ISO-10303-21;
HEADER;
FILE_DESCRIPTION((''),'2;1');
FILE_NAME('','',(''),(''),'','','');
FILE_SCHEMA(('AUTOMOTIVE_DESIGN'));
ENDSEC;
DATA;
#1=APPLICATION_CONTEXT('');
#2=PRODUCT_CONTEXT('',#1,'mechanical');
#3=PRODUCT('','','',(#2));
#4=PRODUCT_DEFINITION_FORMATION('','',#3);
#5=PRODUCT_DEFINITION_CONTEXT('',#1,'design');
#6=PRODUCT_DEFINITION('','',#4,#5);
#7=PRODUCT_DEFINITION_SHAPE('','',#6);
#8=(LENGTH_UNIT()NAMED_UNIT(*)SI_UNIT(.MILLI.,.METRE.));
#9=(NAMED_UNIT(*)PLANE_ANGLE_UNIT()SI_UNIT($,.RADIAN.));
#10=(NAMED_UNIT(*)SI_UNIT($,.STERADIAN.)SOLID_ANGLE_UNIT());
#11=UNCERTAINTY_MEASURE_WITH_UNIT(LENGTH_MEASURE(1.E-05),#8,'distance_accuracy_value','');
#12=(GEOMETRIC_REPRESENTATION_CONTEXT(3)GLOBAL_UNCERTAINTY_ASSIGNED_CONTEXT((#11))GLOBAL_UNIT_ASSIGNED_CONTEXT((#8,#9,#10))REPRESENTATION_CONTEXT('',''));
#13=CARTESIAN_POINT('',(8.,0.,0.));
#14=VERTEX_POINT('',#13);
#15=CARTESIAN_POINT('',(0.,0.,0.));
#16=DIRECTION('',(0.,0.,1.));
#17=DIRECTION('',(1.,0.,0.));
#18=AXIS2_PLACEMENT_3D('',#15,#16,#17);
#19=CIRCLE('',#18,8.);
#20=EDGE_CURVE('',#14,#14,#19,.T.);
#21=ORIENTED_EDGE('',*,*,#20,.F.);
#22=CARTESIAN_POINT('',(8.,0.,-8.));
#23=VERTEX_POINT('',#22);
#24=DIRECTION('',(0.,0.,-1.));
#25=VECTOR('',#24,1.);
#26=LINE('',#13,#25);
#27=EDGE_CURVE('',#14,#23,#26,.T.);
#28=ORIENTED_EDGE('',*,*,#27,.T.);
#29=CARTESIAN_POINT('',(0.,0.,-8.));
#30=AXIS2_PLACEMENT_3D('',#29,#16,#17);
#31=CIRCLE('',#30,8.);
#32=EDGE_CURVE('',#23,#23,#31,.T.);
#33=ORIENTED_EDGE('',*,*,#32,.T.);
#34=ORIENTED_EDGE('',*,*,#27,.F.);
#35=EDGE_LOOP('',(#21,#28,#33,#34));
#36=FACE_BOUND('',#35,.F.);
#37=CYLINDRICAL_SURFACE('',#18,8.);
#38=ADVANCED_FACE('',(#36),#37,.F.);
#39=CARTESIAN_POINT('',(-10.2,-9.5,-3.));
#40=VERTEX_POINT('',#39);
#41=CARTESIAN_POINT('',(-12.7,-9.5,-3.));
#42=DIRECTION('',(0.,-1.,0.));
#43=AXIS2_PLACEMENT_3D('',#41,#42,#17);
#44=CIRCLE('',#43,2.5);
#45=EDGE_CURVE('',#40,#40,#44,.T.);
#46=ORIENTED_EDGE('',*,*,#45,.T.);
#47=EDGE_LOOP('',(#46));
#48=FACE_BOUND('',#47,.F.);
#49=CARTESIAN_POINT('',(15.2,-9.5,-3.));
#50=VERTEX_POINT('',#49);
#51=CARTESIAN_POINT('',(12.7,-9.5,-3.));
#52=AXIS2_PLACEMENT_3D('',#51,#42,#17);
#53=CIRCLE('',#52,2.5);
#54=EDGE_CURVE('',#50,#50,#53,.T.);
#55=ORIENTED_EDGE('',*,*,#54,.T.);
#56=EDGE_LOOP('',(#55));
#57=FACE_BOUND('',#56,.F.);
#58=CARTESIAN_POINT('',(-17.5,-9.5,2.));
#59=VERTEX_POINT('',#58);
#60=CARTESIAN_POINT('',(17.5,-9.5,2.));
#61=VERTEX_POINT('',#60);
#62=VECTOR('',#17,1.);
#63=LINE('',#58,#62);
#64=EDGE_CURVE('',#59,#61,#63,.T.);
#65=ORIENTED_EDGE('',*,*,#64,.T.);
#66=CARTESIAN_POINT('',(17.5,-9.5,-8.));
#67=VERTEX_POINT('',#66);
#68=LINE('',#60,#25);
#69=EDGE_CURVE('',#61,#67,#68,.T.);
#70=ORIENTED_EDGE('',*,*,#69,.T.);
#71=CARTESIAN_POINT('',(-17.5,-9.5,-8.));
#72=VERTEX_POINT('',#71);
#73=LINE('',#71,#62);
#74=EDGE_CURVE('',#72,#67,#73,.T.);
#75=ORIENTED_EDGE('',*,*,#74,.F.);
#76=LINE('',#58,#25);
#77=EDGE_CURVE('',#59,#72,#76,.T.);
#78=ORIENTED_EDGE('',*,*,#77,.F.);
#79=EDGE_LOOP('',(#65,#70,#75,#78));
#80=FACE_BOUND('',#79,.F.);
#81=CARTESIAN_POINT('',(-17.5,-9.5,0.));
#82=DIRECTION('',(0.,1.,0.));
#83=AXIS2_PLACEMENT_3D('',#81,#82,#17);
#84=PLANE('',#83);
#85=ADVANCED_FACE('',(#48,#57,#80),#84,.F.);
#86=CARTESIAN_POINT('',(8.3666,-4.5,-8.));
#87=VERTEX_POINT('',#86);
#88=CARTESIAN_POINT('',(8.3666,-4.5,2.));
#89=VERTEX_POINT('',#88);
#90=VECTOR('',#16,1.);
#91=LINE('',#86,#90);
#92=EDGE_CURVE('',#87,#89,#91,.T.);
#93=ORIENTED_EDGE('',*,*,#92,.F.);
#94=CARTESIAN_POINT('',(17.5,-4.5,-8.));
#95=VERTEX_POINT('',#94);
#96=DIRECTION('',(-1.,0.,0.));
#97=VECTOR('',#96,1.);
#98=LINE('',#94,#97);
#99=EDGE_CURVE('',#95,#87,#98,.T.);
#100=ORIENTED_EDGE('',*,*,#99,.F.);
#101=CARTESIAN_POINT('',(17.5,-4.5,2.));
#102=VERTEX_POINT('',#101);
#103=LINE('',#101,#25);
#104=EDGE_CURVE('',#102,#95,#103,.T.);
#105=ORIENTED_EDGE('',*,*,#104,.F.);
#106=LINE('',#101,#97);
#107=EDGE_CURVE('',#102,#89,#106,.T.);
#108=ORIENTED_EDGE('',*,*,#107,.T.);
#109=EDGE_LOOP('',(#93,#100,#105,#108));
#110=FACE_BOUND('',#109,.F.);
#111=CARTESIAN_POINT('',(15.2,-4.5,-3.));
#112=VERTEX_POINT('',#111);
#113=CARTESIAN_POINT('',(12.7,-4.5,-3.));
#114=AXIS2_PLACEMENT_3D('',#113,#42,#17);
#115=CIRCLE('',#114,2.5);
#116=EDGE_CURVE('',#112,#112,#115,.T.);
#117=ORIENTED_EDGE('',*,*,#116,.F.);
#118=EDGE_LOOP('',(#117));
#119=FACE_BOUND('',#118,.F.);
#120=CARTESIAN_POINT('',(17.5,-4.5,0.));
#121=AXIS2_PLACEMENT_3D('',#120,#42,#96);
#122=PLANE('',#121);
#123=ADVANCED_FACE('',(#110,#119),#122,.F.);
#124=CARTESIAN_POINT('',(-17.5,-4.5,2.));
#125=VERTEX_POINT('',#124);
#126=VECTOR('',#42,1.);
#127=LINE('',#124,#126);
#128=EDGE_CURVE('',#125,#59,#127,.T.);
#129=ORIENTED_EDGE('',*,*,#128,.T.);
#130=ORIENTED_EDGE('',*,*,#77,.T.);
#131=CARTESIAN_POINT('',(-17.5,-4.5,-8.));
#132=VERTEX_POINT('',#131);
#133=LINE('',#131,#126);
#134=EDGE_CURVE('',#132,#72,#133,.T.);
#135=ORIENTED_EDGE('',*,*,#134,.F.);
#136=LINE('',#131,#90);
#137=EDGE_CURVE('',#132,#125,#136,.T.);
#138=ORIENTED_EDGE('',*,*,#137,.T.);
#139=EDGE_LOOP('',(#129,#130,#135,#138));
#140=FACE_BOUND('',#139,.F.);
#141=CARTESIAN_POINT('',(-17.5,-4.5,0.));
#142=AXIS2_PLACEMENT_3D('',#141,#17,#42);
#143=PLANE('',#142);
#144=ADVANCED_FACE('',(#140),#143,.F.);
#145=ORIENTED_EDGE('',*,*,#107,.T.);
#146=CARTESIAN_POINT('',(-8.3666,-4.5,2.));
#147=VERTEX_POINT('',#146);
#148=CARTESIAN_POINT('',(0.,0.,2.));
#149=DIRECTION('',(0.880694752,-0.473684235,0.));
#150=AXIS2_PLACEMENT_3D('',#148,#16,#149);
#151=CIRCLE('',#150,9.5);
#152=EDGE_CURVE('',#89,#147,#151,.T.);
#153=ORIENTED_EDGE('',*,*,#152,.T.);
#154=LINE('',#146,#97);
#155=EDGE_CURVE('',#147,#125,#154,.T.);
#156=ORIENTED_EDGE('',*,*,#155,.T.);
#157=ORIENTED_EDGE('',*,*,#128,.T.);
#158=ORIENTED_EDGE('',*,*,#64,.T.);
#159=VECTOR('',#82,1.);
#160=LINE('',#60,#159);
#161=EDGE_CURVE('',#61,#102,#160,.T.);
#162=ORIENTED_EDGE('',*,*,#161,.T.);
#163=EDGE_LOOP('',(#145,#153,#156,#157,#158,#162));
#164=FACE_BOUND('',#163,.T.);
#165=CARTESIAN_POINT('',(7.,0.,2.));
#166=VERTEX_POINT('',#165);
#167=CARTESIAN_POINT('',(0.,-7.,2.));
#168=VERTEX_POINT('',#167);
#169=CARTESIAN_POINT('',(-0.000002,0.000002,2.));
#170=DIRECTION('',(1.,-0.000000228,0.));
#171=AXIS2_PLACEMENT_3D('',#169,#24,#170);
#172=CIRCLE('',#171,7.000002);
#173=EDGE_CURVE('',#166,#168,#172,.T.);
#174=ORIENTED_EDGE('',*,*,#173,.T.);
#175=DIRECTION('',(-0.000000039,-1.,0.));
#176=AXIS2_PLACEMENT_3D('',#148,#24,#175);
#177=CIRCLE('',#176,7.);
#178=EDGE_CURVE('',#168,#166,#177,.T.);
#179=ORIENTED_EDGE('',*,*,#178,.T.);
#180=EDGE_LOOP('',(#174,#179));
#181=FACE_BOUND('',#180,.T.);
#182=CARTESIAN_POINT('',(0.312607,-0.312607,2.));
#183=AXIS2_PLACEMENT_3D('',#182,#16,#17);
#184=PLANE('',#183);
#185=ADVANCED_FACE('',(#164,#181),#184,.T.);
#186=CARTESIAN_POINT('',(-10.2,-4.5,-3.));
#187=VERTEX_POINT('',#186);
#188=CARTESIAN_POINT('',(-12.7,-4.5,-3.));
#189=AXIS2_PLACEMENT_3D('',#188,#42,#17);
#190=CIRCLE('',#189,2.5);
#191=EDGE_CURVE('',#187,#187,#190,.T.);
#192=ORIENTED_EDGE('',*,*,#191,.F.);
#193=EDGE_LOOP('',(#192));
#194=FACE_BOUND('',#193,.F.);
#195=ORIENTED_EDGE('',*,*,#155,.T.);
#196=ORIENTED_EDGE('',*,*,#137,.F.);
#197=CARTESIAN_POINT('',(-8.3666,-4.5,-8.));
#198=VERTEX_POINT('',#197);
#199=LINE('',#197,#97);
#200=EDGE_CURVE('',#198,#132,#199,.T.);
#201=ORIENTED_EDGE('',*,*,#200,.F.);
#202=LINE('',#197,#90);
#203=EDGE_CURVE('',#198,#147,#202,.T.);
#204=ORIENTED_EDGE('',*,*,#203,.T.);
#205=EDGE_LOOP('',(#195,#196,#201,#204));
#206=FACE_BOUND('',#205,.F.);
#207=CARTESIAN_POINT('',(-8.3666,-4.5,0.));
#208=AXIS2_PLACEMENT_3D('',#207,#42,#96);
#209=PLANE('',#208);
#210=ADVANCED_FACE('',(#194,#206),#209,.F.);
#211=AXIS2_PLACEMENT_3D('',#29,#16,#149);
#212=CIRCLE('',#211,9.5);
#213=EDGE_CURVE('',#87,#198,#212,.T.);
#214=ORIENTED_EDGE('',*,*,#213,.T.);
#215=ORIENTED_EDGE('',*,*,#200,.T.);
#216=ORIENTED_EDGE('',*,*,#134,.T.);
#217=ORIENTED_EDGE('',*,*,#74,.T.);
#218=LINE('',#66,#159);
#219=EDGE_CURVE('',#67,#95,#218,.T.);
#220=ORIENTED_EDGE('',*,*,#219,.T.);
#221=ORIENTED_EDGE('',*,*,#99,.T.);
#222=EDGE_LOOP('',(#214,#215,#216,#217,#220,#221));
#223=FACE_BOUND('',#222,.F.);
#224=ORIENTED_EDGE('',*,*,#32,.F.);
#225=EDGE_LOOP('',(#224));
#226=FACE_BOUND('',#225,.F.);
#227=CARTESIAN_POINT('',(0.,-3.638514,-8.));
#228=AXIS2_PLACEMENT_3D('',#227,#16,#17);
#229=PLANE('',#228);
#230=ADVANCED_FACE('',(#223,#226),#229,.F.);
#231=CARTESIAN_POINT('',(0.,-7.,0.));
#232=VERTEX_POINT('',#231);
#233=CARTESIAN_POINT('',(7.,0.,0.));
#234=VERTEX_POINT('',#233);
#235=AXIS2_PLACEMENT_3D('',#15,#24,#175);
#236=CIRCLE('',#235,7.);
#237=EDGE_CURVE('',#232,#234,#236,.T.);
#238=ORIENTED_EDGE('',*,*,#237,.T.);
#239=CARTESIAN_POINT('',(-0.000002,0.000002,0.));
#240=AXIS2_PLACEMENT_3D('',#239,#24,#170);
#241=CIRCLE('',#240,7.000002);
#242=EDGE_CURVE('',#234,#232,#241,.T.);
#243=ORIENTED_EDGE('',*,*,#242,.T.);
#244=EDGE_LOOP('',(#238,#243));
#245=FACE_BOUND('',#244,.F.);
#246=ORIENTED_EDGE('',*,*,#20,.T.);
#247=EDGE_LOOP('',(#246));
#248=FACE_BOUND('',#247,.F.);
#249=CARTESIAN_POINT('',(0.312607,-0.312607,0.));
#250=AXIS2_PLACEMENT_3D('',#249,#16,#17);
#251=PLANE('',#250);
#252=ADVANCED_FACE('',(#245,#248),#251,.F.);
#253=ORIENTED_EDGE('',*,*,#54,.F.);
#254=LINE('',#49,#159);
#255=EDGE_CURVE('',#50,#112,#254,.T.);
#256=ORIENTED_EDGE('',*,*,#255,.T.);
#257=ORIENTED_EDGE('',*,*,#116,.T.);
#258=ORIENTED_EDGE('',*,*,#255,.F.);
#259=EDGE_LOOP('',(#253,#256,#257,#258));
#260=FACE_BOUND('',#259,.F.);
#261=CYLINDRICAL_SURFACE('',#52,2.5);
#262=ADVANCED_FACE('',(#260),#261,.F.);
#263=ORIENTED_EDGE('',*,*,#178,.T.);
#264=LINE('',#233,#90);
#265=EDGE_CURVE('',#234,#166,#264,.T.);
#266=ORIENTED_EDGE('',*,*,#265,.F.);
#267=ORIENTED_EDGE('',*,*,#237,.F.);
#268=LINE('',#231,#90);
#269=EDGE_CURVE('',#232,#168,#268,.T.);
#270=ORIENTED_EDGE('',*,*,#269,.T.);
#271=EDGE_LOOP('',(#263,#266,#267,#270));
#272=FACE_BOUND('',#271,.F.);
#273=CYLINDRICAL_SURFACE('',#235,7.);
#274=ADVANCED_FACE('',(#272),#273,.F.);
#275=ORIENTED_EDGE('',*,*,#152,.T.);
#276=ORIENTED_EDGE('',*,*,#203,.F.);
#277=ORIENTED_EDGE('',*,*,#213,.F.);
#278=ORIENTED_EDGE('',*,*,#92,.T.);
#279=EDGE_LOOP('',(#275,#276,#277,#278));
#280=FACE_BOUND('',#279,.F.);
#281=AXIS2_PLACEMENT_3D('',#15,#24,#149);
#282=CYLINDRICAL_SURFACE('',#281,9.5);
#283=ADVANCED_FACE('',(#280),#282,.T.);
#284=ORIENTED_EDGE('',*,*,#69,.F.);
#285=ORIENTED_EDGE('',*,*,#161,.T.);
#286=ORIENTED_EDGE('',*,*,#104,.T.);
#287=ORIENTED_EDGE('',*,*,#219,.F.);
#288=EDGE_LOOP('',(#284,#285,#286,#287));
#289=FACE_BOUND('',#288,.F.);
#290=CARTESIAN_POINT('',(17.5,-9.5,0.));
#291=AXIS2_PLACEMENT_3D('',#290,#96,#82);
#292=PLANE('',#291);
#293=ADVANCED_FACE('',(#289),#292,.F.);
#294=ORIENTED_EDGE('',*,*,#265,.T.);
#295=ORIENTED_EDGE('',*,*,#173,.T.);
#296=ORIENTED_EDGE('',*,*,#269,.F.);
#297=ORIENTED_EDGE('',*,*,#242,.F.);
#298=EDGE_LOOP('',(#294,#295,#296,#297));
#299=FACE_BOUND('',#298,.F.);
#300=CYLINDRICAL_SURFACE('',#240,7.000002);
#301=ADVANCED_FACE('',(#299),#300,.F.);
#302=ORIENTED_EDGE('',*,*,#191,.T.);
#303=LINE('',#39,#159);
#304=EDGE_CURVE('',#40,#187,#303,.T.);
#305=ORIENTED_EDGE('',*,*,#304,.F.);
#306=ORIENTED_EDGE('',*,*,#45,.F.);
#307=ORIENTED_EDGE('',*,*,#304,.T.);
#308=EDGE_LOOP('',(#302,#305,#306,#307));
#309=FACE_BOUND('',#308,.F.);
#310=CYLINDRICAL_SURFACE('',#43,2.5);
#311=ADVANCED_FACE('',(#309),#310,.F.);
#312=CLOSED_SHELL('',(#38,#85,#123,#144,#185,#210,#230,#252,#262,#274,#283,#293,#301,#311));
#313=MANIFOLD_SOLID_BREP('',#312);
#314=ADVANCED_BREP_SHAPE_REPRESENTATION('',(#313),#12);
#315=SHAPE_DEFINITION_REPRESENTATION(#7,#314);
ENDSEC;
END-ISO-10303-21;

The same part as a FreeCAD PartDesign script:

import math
import FreeCAD as App
import Part
import Sketcher
from FreeCAD import Vector
Q = App.Units.Quantity

doc = App.newDocument("Part")
params = doc.addObject("Spreadsheet::Sheet", "Params")
for row, (alias, value) in enumerate([
    ("sketch1_diameter", "16 mm"),
    ("sketch1_radius", "9.5 mm"),
    ("sketch1_width", "35 mm"),
    ("sketch1_height", "5 mm"),
    ("pad1_length", "8 mm"),
    ("sketch2_radius", "7 mm"),
    ("sketch2_radius2", "9.5 mm"),
    ("sketch2_width", "35 mm"),
    ("sketch2_height", "5 mm"),
    ("pad2_length", "2 mm"),
    ("sketch3_diameter", "5 mm"),
    ("pocket1_length", "25.4 mm"),
], start=1):
    params.set(f"A{row}", alias)
    params.set(f"B{row}", "=" + value)
    params.setAlias(f"B{row}", alias)

body = doc.addObject("PartDesign::Body", "Body")

# Sketch on XY plane
sketch1 = body.newObject("Sketcher::SketchObject", "Sketch")
sketch1.AttachmentSupport = (doc.getObject("XY_Plane"), [""])
sketch1.MapMode = "FlatFace"
sketch1.addGeometry(Part.LineSegment(Vector(18, -4, 0), Vector(8, -4, 0)), False)
sketch1.addGeometry(Part.ArcOfCircle(Part.Circle(Vector(0, 0, 0), Vector(0, 0, 1), 9), math.radians(-28), math.radians(208)), False)
sketch1.addGeometry(Part.LineSegment(Vector(-8, -4, 0), Vector(-18, -4, 0)), False)
sketch1.addGeometry(Part.LineSegment(Vector(-18, -4, 0), Vector(-18, -10, 0)), False)
sketch1.addGeometry(Part.LineSegment(Vector(-18, -10, 0), Vector(18, -10, 0)), False)
sketch1.addGeometry(Part.LineSegment(Vector(18, -10, 0), Vector(18, -4, 0)), False)
sketch1.addGeometry(Part.Circle(Vector(0, 0, 0), Vector(0, 0, 1), 8), False)
sketch1.addConstraint(Sketcher.Constraint("Coincident", 0, 2, 1, 1))
sketch1.addConstraint(Sketcher.Constraint("Coincident", 1, 2, 2, 1))
sketch1.addConstraint(Sketcher.Constraint("Coincident", 2, 2, 3, 1))
sketch1.addConstraint(Sketcher.Constraint("Coincident", 3, 2, 4, 1))
sketch1.addConstraint(Sketcher.Constraint("Coincident", 4, 2, 5, 1))
sketch1.addConstraint(Sketcher.Constraint("Coincident", 5, 2, 0, 1))
sketch1.addConstraint(Sketcher.Constraint("Horizontal", 0))
sketch1.addConstraint(Sketcher.Constraint("Horizontal", 2))
sketch1.addConstraint(Sketcher.Constraint("Vertical", 3))
sketch1.addConstraint(Sketcher.Constraint("Horizontal", 4))
sketch1.addConstraint(Sketcher.Constraint("Vertical", 5))
sketch1.addConstraint(Sketcher.Constraint("Coincident", 1, 3, -1, 1))
sketch1.addConstraint(Sketcher.Constraint("Coincident", 6, 3, -1, 1))
sketch1.addConstraint(Sketcher.Constraint("Symmetric", 2, 2, 5, 2, -2))
sketch1.addConstraint(Sketcher.Constraint("Diameter", 6, Q("16 mm")))
sketch1.addConstraint(Sketcher.Constraint("Radius", 1, Q("9.5 mm")))
sketch1.addConstraint(Sketcher.Constraint("DistanceX", 4, 1, 4, 2, Q("35 mm")))
sketch1.addConstraint(Sketcher.Constraint("DistanceY", 3, 2, 3, 1, Q("5 mm")))
sketch1.addConstraint(Sketcher.Constraint("DistanceY", 0, 2, -1, 1, Q("4.5 mm")))
sketch1.setExpression("Constraints[14]", "Params.sketch1_diameter")
sketch1.setExpression("Constraints[15]", "Params.sketch1_radius")
sketch1.setExpression("Constraints[16]", "Params.sketch1_width")
sketch1.setExpression("Constraints[17]", "Params.sketch1_height")
pad1 = body.newObject("PartDesign::Pad", "Pad")
pad1.Profile = sketch1
pad1.setExpression("Length", "Params.pad1_length")
pad1.Reversed = True

# Sketch on XY plane
sketch2 = body.newObject("Sketcher::SketchObject", "Sketch001")
sketch2.AttachmentSupport = (doc.getObject("XY_Plane"), [""])
sketch2.MapMode = "FlatFace"
sketch2.addGeometry(Part.LineSegment(Vector(18, -4, 0), Vector(8, -4, 0)), False)
sketch2.addGeometry(Part.ArcOfCircle(Part.Circle(Vector(0, 0, 0), Vector(0, 0, 1), 9), math.radians(-28), math.radians(208)), False)
sketch2.addGeometry(Part.LineSegment(Vector(-8, -4, 0), Vector(-18, -4, 0)), False)
sketch2.addGeometry(Part.LineSegment(Vector(-18, -4, 0), Vector(-18, -10, 0)), False)
sketch2.addGeometry(Part.LineSegment(Vector(-18, -10, 0), Vector(18, -10, 0)), False)
sketch2.addGeometry(Part.LineSegment(Vector(18, -10, 0), Vector(18, -4, 0)), False)
sketch2.addGeometry(Part.ArcOfCircle(Part.Circle(Vector(0, 0, 0), Vector(0, 0, 1), 7), math.radians(0), math.radians(270)), False)
sketch2.addGeometry(Part.ArcOfCircle(Part.Circle(Vector(0, 0, 0), Vector(0, 0, 1), 7), math.radians(-90), math.radians(0)), False)
sketch2.addConstraint(Sketcher.Constraint("Coincident", 0, 2, 1, 1))
sketch2.addConstraint(Sketcher.Constraint("Coincident", 1, 2, 2, 1))
sketch2.addConstraint(Sketcher.Constraint("Coincident", 2, 2, 3, 1))
sketch2.addConstraint(Sketcher.Constraint("Coincident", 3, 2, 4, 1))
sketch2.addConstraint(Sketcher.Constraint("Coincident", 4, 2, 5, 1))
sketch2.addConstraint(Sketcher.Constraint("Coincident", 5, 2, 0, 1))
sketch2.addConstraint(Sketcher.Constraint("Tangent", 6, 1, 7, 2))
sketch2.addConstraint(Sketcher.Constraint("Coincident", 7, 1, 6, 2))
sketch2.addConstraint(Sketcher.Constraint("Horizontal", 0))
sketch2.addConstraint(Sketcher.Constraint("Horizontal", 2))
sketch2.addConstraint(Sketcher.Constraint("Vertical", 3))
sketch2.addConstraint(Sketcher.Constraint("Horizontal", 4))
sketch2.addConstraint(Sketcher.Constraint("Vertical", 5))
sketch2.addConstraint(Sketcher.Constraint("Coincident", 1, 3, -1, 1))
sketch2.addConstraint(Sketcher.Constraint("Coincident", 6, 3, -1, 1))
sketch2.addConstraint(Sketcher.Constraint("Symmetric", 2, 2, 5, 2, -2))
sketch2.addConstraint(Sketcher.Constraint("PointOnObject", 6, 1, -1))
sketch2.addConstraint(Sketcher.Constraint("PointOnObject", 7, 1, -2))
sketch2.addConstraint(Sketcher.Constraint("Radius", 6, Q("7 mm")))
sketch2.addConstraint(Sketcher.Constraint("Radius", 1, Q("9.5 mm")))
sketch2.addConstraint(Sketcher.Constraint("DistanceX", 4, 1, 4, 2, Q("35 mm")))
sketch2.addConstraint(Sketcher.Constraint("DistanceY", 3, 2, 3, 1, Q("5 mm")))
sketch2.addConstraint(Sketcher.Constraint("DistanceY", 0, 2, -1, 1, Q("4.5 mm")))
sketch2.setExpression("Constraints[18]", "Params.sketch2_radius")
sketch2.setExpression("Constraints[19]", "Params.sketch2_radius2")
sketch2.setExpression("Constraints[20]", "Params.sketch2_width")
sketch2.setExpression("Constraints[21]", "Params.sketch2_height")
pad2 = body.newObject("PartDesign::Pad", "Pad001")
pad2.Profile = sketch2
pad2.setExpression("Length", "Params.pad2_length")

# Sketch on XZ plane
sketch3 = body.newObject("Sketcher::SketchObject", "Sketch002")
sketch3.AttachmentSupport = (doc.getObject("XZ_Plane"), [""])
sketch3.MapMode = "FlatFace"
sketch3.AttachmentOffset = App.Placement(Vector(0, 0, 9.5), App.Rotation())
sketch3.addGeometry(Part.Circle(Vector(-12.7, -3, 0), Vector(0, 0, 1), 2.5), False)
sketch3.addGeometry(Part.Circle(Vector(12.7, -3, 0), Vector(0, 0, 1), 2.5), False)
sketch3.addConstraint(Sketcher.Constraint("Equal", 0, 1))
sketch3.addConstraint(Sketcher.Constraint("Symmetric", 0, 3, 1, 3, -2))
sketch3.addConstraint(Sketcher.Constraint("Diameter", 0, Q("5 mm")))
sketch3.addConstraint(Sketcher.Constraint("DistanceY", 0, 3, -1, 1, Q("3 mm")))
sketch3.addConstraint(Sketcher.Constraint("DistanceX", 0, 3, -1, 1, Q("12.7 mm")))
sketch3.setExpression("Constraints[2]", "Params.sketch3_diameter")
pocket1 = body.newObject("PartDesign::Pocket", "Pocket")
pocket1.Profile = sketch3
pocket1.setExpression("Length", "Params.pocket1_length")

doc.recompute()
